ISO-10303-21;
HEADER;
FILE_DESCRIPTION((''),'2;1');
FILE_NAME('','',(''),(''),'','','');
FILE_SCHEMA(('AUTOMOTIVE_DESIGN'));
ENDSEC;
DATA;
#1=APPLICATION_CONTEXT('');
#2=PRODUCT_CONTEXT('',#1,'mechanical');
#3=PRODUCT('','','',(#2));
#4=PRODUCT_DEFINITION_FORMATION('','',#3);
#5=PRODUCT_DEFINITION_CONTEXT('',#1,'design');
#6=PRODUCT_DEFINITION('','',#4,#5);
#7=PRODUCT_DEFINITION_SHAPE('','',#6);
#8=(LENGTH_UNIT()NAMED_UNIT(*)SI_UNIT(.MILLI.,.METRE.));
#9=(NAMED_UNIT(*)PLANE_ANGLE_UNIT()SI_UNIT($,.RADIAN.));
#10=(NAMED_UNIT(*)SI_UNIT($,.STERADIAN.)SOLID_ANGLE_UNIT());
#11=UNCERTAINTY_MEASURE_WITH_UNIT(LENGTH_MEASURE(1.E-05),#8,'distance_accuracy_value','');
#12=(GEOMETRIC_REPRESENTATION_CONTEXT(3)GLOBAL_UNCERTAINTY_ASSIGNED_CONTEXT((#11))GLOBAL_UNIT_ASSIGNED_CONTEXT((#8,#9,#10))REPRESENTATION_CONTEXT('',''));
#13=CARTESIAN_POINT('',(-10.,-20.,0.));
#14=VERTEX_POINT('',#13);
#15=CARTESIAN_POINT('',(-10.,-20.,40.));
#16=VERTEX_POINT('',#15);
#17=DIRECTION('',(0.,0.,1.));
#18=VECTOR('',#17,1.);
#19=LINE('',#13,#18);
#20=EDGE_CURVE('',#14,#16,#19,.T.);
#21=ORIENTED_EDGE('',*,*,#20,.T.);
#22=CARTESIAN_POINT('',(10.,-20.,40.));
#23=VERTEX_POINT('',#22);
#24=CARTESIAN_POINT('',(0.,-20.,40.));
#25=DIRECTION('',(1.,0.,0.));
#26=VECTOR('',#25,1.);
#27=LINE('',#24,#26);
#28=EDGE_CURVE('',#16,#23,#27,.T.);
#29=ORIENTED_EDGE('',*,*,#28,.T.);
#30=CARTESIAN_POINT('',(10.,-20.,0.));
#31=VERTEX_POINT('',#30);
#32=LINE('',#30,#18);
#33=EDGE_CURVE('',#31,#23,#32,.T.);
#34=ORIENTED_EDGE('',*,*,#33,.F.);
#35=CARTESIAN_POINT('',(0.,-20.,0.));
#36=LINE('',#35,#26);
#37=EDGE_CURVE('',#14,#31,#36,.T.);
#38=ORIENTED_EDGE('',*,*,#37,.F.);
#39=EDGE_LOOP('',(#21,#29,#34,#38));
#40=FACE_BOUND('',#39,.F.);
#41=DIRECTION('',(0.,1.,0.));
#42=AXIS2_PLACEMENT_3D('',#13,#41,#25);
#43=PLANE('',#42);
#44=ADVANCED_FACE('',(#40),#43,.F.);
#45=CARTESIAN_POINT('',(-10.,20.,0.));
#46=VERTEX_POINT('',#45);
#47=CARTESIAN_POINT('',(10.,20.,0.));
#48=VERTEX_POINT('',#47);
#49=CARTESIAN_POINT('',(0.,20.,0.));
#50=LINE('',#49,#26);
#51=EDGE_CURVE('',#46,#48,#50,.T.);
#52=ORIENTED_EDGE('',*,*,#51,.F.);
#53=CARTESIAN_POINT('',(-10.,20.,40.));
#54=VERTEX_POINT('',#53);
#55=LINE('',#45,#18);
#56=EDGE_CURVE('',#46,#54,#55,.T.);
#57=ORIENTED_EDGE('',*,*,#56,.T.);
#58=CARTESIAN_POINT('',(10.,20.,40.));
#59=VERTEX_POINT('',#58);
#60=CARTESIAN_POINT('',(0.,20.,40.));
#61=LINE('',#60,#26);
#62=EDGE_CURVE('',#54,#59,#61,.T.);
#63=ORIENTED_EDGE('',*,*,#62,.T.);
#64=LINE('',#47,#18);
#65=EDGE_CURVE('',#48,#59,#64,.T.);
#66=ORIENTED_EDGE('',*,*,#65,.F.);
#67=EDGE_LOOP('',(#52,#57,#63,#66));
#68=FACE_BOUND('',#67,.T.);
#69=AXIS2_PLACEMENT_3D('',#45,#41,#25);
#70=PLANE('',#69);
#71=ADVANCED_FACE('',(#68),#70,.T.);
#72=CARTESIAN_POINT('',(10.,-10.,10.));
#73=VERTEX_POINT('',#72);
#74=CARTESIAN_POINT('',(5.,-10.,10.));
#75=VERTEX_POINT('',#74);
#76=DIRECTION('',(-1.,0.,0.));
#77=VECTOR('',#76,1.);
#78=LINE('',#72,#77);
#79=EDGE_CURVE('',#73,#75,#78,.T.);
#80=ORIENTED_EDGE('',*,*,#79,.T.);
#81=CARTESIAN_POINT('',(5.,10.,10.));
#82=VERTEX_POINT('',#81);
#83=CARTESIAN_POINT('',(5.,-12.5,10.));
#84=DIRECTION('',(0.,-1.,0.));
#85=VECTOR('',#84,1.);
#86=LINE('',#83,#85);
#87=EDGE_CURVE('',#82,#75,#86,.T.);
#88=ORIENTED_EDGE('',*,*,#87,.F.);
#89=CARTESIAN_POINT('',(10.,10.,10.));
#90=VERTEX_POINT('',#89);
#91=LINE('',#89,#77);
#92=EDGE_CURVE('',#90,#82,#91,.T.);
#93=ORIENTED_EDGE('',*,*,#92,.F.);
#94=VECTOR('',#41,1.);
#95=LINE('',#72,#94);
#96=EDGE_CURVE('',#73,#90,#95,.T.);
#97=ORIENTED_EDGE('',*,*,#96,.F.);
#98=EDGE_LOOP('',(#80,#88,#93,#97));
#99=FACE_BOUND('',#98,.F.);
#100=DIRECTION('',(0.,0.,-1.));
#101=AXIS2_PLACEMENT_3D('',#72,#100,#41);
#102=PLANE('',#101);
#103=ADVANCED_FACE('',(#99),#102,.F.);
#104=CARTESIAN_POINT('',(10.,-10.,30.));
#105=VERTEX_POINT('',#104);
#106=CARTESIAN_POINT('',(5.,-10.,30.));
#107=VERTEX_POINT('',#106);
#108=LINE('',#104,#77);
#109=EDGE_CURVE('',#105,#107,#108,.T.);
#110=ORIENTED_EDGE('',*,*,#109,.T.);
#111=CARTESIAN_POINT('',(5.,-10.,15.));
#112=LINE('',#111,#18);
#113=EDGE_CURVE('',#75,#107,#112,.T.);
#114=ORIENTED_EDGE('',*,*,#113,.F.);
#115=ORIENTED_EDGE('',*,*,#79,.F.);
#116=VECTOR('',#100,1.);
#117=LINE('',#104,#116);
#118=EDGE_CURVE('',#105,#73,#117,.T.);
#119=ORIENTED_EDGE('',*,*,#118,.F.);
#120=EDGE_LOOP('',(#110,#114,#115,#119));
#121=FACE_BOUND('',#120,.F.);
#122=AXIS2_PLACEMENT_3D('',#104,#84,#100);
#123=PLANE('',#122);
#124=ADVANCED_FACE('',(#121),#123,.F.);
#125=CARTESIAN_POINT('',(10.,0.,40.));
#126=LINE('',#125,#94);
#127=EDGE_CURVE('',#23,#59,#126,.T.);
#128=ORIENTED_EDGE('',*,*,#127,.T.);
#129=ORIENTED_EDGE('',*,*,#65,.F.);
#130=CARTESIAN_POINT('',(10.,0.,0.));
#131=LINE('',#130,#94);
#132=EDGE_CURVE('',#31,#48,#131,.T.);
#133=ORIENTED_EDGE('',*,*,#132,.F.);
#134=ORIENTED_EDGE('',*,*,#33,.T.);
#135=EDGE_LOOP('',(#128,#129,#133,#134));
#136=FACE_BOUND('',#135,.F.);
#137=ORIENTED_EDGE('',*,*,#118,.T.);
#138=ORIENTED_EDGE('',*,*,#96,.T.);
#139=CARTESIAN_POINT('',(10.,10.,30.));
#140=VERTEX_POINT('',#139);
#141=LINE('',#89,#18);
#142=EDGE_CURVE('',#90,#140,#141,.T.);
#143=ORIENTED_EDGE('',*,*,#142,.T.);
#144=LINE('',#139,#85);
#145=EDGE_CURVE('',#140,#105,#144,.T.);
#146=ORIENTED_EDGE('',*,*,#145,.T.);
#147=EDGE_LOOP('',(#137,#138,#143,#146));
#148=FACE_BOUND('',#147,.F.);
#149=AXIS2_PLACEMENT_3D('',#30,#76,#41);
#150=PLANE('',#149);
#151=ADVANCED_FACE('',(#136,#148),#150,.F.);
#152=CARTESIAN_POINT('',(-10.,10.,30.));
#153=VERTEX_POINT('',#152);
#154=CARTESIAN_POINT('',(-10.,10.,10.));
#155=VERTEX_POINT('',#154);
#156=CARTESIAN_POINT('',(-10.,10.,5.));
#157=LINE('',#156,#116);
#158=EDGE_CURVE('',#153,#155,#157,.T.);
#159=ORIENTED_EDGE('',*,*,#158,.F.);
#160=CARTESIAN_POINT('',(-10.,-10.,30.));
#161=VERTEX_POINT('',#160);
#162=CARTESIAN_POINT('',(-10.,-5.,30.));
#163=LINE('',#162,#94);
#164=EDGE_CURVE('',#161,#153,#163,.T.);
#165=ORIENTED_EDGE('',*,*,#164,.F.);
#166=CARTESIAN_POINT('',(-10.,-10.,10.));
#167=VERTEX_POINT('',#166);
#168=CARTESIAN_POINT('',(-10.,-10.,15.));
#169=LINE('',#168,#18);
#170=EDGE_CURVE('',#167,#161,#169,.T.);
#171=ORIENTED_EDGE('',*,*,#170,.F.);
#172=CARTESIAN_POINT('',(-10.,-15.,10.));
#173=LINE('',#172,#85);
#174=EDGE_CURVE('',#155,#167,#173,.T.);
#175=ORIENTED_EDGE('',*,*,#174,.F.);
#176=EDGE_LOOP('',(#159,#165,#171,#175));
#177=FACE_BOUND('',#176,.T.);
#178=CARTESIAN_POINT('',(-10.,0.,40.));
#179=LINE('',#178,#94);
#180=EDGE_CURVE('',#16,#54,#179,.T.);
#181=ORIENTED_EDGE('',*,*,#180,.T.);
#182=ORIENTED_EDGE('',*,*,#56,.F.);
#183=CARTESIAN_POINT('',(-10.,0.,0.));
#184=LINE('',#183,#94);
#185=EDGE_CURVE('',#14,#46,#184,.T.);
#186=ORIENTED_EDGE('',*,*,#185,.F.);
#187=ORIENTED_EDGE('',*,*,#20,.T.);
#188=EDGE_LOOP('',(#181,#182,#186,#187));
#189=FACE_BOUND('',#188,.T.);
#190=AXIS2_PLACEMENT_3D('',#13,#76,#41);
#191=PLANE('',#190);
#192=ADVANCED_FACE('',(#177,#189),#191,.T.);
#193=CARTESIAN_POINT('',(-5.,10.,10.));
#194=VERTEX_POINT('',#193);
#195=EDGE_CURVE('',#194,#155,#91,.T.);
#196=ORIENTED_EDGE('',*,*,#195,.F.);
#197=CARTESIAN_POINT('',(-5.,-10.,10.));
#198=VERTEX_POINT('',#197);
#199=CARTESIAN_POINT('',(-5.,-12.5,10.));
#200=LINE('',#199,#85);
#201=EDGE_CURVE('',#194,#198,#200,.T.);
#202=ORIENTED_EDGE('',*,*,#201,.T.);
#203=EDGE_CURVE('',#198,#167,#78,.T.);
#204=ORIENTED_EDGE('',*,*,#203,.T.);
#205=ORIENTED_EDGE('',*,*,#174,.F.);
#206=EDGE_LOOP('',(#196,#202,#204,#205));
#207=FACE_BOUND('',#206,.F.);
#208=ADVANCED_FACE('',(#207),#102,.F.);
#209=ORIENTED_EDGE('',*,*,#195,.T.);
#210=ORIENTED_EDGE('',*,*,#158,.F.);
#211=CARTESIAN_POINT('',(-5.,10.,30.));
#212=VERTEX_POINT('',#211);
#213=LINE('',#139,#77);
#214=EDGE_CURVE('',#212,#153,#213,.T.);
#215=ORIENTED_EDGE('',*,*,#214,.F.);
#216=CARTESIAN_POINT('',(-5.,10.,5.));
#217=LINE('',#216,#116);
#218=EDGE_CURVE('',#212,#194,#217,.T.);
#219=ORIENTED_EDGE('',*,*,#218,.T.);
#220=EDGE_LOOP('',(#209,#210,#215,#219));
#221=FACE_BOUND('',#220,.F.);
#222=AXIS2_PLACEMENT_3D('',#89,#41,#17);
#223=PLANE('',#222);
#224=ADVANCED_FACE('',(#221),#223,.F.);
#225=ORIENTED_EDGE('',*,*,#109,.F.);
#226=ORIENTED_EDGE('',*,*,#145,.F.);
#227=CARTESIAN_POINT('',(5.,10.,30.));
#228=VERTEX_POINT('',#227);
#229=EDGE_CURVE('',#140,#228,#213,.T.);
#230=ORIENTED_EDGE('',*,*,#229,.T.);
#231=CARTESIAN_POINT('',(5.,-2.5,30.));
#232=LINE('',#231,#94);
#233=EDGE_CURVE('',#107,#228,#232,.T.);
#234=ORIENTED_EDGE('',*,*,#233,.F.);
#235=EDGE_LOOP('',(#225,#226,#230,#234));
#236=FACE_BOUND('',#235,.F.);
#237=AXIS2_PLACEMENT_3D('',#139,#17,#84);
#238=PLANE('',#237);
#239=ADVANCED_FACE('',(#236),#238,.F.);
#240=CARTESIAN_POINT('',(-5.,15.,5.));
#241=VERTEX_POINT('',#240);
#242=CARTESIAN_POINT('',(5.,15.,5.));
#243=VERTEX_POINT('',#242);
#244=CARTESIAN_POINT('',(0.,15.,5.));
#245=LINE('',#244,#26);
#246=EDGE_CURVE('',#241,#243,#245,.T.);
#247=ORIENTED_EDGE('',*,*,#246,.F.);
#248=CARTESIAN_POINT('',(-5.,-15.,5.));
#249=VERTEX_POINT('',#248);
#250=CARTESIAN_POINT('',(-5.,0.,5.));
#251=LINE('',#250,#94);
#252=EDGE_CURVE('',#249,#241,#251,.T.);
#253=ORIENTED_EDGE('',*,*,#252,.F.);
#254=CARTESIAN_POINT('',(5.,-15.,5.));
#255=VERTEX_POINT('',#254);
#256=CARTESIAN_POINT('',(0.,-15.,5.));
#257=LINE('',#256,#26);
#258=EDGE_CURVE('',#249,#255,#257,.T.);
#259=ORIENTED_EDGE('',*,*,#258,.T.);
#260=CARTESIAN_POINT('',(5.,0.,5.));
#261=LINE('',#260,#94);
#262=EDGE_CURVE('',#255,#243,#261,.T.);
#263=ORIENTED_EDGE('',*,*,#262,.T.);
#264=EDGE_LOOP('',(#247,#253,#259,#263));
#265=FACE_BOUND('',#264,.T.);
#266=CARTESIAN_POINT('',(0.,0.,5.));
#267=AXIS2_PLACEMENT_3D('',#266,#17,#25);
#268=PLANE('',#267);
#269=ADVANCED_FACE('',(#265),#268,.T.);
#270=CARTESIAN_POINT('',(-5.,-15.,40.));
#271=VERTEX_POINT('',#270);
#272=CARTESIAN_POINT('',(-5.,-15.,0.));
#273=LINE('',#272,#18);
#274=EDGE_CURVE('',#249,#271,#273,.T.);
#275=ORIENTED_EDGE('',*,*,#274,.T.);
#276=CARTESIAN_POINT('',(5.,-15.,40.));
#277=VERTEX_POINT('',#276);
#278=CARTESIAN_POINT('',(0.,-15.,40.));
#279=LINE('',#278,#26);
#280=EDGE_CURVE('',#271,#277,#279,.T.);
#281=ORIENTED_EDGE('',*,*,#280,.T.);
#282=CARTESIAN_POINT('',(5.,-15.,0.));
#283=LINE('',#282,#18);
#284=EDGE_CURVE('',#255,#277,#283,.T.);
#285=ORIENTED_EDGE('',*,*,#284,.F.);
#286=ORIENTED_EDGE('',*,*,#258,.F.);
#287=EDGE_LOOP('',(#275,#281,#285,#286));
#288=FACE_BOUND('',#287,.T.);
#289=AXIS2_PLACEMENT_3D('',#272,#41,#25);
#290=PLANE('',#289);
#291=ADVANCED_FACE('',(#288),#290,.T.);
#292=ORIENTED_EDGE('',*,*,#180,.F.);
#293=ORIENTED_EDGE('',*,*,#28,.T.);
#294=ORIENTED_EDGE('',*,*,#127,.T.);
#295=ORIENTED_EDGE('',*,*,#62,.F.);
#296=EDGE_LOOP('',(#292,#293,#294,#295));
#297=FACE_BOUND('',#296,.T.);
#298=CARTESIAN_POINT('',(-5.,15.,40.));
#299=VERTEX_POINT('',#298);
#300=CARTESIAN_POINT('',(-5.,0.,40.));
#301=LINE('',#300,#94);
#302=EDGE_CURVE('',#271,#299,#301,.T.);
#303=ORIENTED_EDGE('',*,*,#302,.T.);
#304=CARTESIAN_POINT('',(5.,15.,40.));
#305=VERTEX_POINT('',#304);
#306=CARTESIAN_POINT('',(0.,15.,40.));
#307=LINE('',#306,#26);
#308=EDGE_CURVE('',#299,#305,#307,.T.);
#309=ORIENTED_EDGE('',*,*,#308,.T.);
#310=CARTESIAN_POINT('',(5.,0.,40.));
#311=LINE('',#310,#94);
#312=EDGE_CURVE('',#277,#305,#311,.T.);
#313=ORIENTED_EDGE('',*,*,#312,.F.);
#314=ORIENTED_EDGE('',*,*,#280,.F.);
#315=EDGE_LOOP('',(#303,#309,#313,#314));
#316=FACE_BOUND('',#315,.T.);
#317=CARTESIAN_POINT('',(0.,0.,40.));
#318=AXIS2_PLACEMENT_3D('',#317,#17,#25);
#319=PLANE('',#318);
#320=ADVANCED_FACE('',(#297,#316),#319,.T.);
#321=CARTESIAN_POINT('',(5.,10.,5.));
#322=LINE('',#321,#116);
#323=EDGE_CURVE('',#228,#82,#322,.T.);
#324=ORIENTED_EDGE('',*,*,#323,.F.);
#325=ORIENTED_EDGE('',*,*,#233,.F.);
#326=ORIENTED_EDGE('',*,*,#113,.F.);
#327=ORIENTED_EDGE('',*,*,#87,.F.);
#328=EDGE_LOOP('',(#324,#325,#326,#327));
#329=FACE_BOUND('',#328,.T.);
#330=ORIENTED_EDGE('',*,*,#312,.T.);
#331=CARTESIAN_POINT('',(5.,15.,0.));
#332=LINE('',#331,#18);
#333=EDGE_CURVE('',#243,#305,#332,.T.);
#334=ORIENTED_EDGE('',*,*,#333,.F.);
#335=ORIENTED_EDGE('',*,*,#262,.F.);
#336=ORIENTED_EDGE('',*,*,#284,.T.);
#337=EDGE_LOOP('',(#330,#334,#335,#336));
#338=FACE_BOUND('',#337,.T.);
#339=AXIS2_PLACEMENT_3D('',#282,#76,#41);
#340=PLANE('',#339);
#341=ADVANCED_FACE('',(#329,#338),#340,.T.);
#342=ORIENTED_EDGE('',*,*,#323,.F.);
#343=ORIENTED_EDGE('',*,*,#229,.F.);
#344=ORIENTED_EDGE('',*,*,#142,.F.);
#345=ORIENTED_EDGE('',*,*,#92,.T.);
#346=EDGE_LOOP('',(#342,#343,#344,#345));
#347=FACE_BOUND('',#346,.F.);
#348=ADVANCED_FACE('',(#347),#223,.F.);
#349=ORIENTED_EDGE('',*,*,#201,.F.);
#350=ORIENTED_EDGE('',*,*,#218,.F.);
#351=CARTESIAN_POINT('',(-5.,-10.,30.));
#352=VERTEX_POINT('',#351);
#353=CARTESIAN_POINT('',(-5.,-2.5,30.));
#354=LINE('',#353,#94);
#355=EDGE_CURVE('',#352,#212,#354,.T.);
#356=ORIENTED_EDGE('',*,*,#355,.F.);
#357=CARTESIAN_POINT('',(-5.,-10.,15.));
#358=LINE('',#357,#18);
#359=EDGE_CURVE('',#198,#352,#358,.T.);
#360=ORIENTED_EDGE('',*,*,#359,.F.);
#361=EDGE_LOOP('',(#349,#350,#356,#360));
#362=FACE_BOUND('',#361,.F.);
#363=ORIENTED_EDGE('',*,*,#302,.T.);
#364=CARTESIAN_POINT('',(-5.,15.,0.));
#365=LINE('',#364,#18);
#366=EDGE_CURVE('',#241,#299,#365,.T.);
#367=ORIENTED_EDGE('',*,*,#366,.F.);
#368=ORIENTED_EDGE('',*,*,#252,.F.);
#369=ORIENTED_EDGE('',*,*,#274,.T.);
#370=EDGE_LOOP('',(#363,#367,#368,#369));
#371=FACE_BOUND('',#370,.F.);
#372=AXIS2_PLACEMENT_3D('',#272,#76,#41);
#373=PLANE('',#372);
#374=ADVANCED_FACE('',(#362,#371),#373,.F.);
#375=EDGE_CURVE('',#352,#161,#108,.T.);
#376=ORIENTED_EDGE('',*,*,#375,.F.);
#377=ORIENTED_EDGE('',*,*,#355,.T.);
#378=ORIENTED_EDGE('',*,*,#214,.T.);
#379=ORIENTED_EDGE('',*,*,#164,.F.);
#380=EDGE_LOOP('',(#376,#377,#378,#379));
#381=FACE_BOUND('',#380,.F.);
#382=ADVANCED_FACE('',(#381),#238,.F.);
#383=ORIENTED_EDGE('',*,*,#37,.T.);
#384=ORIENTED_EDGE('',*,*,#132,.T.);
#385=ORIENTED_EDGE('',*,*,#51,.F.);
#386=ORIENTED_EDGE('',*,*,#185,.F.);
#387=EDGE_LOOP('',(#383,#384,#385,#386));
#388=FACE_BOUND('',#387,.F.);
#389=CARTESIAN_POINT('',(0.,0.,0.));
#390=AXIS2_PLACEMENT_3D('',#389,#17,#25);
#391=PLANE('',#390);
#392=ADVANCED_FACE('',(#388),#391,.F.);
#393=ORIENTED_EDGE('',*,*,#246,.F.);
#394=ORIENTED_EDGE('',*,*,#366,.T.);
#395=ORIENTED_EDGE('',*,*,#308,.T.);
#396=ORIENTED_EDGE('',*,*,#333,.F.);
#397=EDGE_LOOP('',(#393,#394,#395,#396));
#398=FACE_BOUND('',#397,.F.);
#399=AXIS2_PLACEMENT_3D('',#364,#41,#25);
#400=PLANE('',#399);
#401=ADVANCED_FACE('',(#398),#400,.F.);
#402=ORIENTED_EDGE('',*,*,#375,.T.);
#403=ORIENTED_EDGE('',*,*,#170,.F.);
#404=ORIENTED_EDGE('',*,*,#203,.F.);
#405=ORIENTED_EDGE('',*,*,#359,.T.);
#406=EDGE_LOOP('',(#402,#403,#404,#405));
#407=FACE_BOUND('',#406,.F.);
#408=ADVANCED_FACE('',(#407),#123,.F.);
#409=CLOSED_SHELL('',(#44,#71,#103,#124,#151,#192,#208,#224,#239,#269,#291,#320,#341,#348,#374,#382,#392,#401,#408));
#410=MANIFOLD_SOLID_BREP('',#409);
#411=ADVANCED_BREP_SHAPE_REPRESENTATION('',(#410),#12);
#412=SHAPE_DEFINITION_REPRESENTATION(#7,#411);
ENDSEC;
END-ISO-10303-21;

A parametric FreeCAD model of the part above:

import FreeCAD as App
import Part
import Sketcher

V = App.Vector
Q = App.Units.Quantity

doc = App.newDocument("Part")
body = doc.addObject("PartDesign::Body", "Body")

sketch1 = body.newObject("Sketcher::SketchObject", "Sketch")
sketch1.AttachmentSupport = (doc.getObject("XY_Plane"), [""])
sketch1.MapMode = "FlatFace"
sketch1.addGeometry([
    Part.LineSegment(V(-10, 20, 0), V(-10, -20, 0)),
    Part.LineSegment(V(-10, -20, 0), V(10, -20, 0)),
    Part.LineSegment(V(10, -20, 0), V(10, 20, 0)),
    Part.LineSegment(V(10, 20, 0), V(-10, 20, 0)),
    Part.LineSegment(V(5, -15, 0), V(-5, -15, 0)),
    Part.LineSegment(V(-5, -15, 0), V(-5, 15, 0)),
    Part.LineSegment(V(-5, 15, 0), V(5, 15, 0)),
    Part.LineSegment(V(5, 15, 0), V(5, -15, 0)),
], False)
sketch1.addConstraint([
    Sketcher.Constraint("Coincident", 0, 2, 1, 1),
    Sketcher.Constraint("Coincident", 1, 2, 2, 1),
    Sketcher.Constraint("Coincident", 2, 2, 3, 1),
    Sketcher.Constraint("Coincident", 3, 2, 0, 1),
    Sketcher.Constraint("Coincident", 4, 2, 5, 1),
    Sketcher.Constraint("Coincident", 5, 2, 6, 1),
    Sketcher.Constraint("Coincident", 6, 2, 7, 1),
    Sketcher.Constraint("Coincident", 7, 2, 4, 1),
    Sketcher.Constraint("Vertical", 0),
    Sketcher.Constraint("Horizontal", 1),
    Sketcher.Constraint("Vertical", 2),
    Sketcher.Constraint("Horizontal", 3),
    Sketcher.Constraint("Horizontal", 4),
    Sketcher.Constraint("Vertical", 5),
    Sketcher.Constraint("Horizontal", 6),
    Sketcher.Constraint("Vertical", 7),
    Sketcher.Constraint("Symmetric", 0, 2, 2, 2, -1, 1),
    Sketcher.Constraint("Symmetric", 4, 2, 6, 2, -1, 1),
    Sketcher.Constraint("DistanceX", 1, 1, 1, 2, Q("20 mm")),
    Sketcher.Constraint("DistanceX", 4, 2, 4, 1, Q("10 mm")),
    Sketcher.Constraint("DistanceY", 0, 2, 0, 1, Q("40 mm")),
    Sketcher.Constraint("DistanceY", 5, 1, 5, 2, Q("30 mm")),
])
pad1 = body.newObject("PartDesign::Pad", "Pad")
pad1.Profile = sketch1
pad1.Length = 40

sketch2 = body.newObject("Sketcher::SketchObject", "Sketch001")
sketch2.AttachmentSupport = (doc.getObject("XY_Plane"), [""])
sketch2.MapMode = "FlatFace"
sketch2.addGeometry([
    Part.LineSegment(V(-5, 15, 0), V(-5, -15, 0)),
    Part.LineSegment(V(-5, -15, 0), V(5, -15, 0)),
    Part.LineSegment(V(5, -15, 0), V(5, 15, 0)),
    Part.LineSegment(V(5, 15, 0), V(-5, 15, 0)),
], False)
sketch2.addConstraint([
    Sketcher.Constraint("Coincident", 0, 2, 1, 1),
    Sketcher.Constraint("Coincident", 1, 2, 2, 1),
    Sketcher.Constraint("Coincident", 2, 2, 3, 1),
    Sketcher.Constraint("Coincident", 3, 2, 0, 1),
    Sketcher.Constraint("Vertical", 0),
    Sketcher.Constraint("Horizontal", 1),
    Sketcher.Constraint("Vertical", 2),
    Sketcher.Constraint("Horizontal", 3),
    Sketcher.Constraint("Symmetric", 0, 2, 2, 2, -1, 1),
    Sketcher.Constraint("DistanceX", 1, 1, 1, 2, Q("10 mm")),
    Sketcher.Constraint("DistanceY", 0, 2, 0, 1, Q("30 mm")),
])
pad2 = body.newObject("PartDesign::Pad", "Pad001")
pad2.Profile = sketch2
pad2.Length = 5

sketch3 = body.newObject("Sketcher::SketchObject", "Sketch002")
sketch3.AttachmentSupport = (doc.getObject("YZ_Plane"), [""])
sketch3.MapMode = "FlatFace"
sketch3.AttachmentOffset = App.Placement(V(0, 0, 10), App.Rotation())
sketch3.addGeometry([
    Part.LineSegment(V(-10, 10, 0), V(10, 10, 0)),
    Part.LineSegment(V(10, 10, 0), V(10, 30, 0)),
    Part.LineSegment(V(10, 30, 0), V(-10, 30, 0)),
    Part.LineSegment(V(-10, 30, 0), V(-10, 10, 0)),
], False)
sketch3.addConstraint([
    Sketcher.Constraint("Coincident", 0, 2, 1, 1),
    Sketcher.Constraint("Coincident", 1, 2, 2, 1),
    Sketcher.Constraint("Coincident", 2, 2, 3, 1),
    Sketcher.Constraint("Coincident", 3, 2, 0, 1),
    Sketcher.Constraint("Horizontal", 0),
    Sketcher.Constraint("Vertical", 1),
    Sketcher.Constraint("Horizontal", 2),
    Sketcher.Constraint("Vertical", 3),
    Sketcher.Constraint("Equal", 2, 1),
    Sketcher.Constraint("DistanceX", 0, 1, 0, 2, Q("20 mm")),
    Sketcher.Constraint("DistanceX", -1, 1, 0, 2, Q("10 mm")),
    Sketcher.Constraint("DistanceY", -1, 1, 0, 2, Q("10 mm")),
])
pocket1 = body.newObject("PartDesign::Pocket", "Pocket")
pocket1.Profile = sketch3
pocket1.Length = 60

doc.recompute()
